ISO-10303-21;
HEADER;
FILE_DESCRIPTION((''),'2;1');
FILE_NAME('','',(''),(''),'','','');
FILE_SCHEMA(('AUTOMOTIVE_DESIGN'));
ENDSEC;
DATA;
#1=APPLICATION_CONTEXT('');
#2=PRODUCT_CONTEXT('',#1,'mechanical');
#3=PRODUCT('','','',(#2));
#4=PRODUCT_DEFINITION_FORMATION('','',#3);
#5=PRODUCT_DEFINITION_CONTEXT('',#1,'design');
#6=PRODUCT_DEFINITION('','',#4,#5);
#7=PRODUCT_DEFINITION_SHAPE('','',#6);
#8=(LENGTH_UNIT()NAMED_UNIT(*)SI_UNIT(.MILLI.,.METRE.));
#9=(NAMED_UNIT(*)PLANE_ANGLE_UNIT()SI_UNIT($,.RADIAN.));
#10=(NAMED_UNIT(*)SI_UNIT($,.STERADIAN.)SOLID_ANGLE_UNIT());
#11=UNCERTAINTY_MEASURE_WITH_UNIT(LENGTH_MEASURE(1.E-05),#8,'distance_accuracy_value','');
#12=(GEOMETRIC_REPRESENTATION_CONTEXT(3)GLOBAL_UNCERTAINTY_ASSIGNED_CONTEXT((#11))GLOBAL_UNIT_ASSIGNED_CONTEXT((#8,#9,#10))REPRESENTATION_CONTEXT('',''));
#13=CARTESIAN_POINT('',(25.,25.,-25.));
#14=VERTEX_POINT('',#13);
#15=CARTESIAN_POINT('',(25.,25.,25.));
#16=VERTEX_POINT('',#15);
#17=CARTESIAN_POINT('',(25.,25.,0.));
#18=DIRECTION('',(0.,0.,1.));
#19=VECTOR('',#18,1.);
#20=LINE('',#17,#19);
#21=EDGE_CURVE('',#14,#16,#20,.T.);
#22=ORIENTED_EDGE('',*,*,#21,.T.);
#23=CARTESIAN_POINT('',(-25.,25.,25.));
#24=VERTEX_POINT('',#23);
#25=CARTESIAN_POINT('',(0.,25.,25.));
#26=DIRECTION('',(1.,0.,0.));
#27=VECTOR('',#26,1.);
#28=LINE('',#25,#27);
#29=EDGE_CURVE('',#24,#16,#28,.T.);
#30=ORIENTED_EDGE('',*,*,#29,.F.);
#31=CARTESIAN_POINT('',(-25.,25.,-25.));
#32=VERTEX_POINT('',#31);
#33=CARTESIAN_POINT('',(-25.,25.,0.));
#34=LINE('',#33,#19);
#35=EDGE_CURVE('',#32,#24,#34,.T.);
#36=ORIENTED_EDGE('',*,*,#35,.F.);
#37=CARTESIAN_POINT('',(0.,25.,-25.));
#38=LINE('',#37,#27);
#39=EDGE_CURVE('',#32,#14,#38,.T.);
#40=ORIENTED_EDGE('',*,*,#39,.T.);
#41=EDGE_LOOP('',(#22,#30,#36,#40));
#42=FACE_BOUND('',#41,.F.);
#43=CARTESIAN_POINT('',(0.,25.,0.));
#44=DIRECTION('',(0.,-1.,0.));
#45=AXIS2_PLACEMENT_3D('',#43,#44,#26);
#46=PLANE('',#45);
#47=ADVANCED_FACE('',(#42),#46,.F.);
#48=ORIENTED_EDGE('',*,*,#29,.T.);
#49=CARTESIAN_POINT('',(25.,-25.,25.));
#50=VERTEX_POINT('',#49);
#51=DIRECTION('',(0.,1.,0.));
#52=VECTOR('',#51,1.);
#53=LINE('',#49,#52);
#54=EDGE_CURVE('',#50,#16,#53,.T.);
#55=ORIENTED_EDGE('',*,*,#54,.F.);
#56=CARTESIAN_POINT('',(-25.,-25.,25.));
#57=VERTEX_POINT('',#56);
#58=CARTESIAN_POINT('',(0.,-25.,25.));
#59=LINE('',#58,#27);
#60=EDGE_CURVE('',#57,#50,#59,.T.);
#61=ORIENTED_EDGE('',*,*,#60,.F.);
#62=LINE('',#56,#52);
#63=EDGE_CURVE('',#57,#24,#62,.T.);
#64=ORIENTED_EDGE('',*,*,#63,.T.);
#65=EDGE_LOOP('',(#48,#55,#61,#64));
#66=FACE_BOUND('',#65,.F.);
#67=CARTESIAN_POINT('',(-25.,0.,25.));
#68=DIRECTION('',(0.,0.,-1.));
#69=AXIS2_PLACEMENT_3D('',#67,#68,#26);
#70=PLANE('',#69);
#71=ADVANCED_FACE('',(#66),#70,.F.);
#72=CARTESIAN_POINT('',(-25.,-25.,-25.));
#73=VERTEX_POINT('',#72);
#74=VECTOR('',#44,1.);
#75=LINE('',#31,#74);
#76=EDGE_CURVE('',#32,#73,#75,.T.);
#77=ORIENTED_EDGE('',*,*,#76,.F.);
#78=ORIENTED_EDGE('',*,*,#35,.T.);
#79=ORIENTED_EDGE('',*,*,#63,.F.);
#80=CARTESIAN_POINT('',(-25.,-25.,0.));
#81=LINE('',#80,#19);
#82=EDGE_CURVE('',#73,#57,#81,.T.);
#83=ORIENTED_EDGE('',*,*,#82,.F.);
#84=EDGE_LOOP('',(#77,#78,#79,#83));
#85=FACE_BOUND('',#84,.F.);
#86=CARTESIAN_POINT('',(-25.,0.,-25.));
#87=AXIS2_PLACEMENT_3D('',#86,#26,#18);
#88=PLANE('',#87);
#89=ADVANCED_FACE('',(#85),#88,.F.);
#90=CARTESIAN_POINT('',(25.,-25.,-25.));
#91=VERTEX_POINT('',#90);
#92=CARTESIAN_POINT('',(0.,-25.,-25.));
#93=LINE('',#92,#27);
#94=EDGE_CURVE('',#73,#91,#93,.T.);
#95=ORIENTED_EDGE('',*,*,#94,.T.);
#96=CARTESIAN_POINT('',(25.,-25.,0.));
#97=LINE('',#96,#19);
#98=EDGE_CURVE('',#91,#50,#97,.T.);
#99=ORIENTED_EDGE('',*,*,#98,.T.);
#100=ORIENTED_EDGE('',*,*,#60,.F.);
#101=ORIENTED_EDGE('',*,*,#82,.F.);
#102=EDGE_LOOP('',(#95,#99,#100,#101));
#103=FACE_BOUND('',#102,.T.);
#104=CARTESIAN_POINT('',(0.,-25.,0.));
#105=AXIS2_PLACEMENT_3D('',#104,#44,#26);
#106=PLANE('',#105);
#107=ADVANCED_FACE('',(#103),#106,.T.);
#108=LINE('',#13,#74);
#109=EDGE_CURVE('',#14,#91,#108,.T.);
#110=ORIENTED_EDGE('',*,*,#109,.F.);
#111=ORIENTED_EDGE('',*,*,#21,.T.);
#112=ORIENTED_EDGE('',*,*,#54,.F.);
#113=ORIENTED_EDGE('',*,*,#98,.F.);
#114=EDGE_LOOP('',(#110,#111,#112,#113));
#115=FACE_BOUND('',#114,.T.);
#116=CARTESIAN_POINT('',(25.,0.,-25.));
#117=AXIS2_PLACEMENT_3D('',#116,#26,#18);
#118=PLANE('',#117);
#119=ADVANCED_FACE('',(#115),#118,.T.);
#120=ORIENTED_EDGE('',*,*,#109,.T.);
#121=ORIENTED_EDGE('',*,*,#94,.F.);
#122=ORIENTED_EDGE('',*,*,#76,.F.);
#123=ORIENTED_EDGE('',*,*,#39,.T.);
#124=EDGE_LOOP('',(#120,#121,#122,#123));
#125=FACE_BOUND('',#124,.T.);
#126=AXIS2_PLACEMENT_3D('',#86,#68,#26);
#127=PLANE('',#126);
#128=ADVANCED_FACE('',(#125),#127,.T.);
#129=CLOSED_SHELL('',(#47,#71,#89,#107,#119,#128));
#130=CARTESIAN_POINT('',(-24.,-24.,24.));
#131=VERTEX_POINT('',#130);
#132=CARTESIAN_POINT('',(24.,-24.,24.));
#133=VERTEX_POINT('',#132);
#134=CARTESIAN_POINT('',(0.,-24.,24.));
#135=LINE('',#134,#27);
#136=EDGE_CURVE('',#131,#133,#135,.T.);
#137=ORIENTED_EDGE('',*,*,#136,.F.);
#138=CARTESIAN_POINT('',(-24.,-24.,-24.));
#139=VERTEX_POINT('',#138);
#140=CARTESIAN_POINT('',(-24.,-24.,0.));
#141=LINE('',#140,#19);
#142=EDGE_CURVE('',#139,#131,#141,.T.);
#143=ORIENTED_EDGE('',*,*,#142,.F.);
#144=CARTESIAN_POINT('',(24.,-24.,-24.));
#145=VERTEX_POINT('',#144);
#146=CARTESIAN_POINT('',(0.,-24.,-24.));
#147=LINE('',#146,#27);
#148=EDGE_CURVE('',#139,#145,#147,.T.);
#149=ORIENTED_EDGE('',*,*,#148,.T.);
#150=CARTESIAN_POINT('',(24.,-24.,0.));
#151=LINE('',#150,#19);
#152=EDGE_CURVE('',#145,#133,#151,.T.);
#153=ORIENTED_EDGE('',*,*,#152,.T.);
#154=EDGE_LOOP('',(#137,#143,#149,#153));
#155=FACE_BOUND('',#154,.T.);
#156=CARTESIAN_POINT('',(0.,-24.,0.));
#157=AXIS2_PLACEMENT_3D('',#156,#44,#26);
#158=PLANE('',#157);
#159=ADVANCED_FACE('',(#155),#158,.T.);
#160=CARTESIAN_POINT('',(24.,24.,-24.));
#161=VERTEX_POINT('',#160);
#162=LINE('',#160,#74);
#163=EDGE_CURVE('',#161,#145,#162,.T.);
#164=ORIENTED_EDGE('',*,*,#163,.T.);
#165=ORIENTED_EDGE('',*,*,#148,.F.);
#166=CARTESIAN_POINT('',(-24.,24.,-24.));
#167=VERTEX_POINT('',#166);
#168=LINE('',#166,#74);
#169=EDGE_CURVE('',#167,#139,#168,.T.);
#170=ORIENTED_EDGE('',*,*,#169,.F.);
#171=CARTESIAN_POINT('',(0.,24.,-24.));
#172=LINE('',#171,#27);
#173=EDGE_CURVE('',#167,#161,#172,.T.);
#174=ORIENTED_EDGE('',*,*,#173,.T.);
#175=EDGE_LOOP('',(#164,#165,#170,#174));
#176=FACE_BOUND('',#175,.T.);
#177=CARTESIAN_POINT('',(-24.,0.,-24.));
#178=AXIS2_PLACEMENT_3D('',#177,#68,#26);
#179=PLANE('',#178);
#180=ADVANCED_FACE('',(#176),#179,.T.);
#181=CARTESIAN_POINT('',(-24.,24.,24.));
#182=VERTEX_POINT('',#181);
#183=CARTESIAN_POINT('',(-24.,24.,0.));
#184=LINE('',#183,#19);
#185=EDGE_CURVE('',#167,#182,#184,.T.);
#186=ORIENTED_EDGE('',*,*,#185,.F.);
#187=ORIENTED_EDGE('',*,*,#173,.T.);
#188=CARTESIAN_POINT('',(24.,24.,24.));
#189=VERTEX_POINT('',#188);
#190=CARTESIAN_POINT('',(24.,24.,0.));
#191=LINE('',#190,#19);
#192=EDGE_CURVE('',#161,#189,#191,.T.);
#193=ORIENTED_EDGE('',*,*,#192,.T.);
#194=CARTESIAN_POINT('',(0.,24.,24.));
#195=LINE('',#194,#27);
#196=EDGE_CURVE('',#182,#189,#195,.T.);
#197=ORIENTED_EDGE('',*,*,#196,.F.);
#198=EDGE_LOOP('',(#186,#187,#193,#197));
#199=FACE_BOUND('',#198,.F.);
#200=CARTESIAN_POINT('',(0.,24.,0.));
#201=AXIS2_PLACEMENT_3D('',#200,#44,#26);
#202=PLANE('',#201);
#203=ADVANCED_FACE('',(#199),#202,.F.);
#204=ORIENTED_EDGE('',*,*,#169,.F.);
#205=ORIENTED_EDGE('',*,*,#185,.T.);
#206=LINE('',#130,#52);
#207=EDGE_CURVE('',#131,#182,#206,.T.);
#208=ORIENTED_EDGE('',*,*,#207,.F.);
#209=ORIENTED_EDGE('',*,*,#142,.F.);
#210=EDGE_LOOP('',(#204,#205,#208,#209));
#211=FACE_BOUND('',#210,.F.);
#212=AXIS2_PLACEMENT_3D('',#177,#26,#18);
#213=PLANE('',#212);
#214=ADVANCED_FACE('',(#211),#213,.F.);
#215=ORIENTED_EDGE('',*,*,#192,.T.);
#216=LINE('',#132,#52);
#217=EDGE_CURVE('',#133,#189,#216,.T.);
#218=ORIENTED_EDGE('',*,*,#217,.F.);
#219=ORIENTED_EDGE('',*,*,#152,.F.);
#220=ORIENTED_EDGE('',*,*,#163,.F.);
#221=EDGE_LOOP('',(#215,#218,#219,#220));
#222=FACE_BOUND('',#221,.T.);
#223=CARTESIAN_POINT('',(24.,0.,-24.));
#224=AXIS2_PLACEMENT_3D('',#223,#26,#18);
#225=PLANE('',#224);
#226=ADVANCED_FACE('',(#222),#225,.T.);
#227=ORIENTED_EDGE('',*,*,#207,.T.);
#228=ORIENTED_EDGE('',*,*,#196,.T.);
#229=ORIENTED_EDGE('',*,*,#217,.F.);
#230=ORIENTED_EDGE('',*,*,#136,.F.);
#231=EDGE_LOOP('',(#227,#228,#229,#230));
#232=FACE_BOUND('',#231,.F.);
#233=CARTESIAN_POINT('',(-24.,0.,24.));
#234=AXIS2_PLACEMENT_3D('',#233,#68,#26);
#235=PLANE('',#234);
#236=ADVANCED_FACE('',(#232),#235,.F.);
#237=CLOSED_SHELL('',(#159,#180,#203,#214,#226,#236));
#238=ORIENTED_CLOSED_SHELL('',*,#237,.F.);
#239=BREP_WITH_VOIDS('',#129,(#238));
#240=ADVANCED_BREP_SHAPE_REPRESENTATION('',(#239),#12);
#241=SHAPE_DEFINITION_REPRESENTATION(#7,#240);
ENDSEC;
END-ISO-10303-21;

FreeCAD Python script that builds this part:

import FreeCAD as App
import Part
import Sketcher
Q = App.Units.Quantity

doc = App.newDocument("Part")
body = doc.addObject("PartDesign::Body", "Body")

# Sketch on XZ plane
sketch1 = doc.addObject("Sketcher::SketchObject", "Sketch")
body.addObject(sketch1)
sketch1.AttachmentSupport = (doc.XZ_Plane, [""])
sketch1.MapMode = "FlatFace"
sketch1.addGeometry([
    Part.LineSegment(App.Vector(-25, 25, 0), App.Vector(-25, -25, 0)),
    Part.LineSegment(App.Vector(-25, -25, 0), App.Vector(25, -25, 0)),
    Part.LineSegment(App.Vector(25, -25, 0), App.Vector(25, 25, 0)),
    Part.LineSegment(App.Vector(25, 25, 0), App.Vector(-25, 25, 0)),
], False)
sketch1.addConstraint([
    Sketcher.Constraint("Coincident", 0, 2, 1, 1),
    Sketcher.Constraint("Coincident", 1, 2, 2, 1),
    Sketcher.Constraint("Coincident", 2, 2, 3, 1),
    Sketcher.Constraint("Coincident", 3, 2, 0, 1),
    Sketcher.Constraint("Vertical", 0),
    Sketcher.Constraint("Horizontal", 1),
    Sketcher.Constraint("Vertical", 2),
    Sketcher.Constraint("Horizontal", 3),
    Sketcher.Constraint("Symmetric", 0, 2, 2, 2, -1, 1),
    Sketcher.Constraint("Equal", 3, 0),
    Sketcher.Constraint("DistanceX", 1, 1, 1, 2, Q("50 mm")),
])
pad1 = doc.addObject("PartDesign::Pad", "Pad")
body.addObject(pad1)
pad1.Profile = sketch1
pad1.Length = 50
pad1.Midplane = True
body2 = doc.addObject("PartDesign::Body", "Body001")

# Sketch on XZ plane
sketch2 = doc.addObject("Sketcher::SketchObject", "Sketch001")
body2.addObject(sketch2)
sketch2.AttachmentSupport = (doc.getObject("XZ_Plane001"), [""])
sketch2.MapMode = "FlatFace"
sketch2.addGeometry([
    Part.LineSegment(App.Vector(-24, 24, 0), App.Vector(-24, -24, 0)),
    Part.LineSegment(App.Vector(-24, -24, 0), App.Vector(24, -24, 0)),
    Part.LineSegment(App.Vector(24, -24, 0), App.Vector(24, 24, 0)),
    Part.LineSegment(App.Vector(24, 24, 0), App.Vector(-24, 24, 0)),
], False)
sketch2.addConstraint([
    Sketcher.Constraint("Coincident", 0, 2, 1, 1),
    Sketcher.Constraint("Coincident", 1, 2, 2, 1),
    Sketcher.Constraint("Coincident", 2, 2, 3, 1),
    Sketcher.Constraint("Coincident", 3, 2, 0, 1),
    Sketcher.Constraint("Vertical", 0),
    Sketcher.Constraint("Horizontal", 1),
    Sketcher.Constraint("Vertical", 2),
    Sketcher.Constraint("Horizontal", 3),
    Sketcher.Constraint("Symmetric", 0, 2, 2, 2, -1, 1),
    Sketcher.Constraint("Equal", 3, 0),
    Sketcher.Constraint("DistanceX", 1, 1, 1, 2, Q("48 mm")),
])
pad2 = doc.addObject("PartDesign::Pad", "Pad001")
body2.addObject(pad2)
pad2.Profile = sketch2
pad2.Length = 48
pad2.Midplane = True
doc.recompute()

boolean = doc.addObject("PartDesign::Boolean", "Boolean")
body.addObject(boolean)
boolean.Type = "Cut"
boolean.addObjects([body2])

doc.recompute()
